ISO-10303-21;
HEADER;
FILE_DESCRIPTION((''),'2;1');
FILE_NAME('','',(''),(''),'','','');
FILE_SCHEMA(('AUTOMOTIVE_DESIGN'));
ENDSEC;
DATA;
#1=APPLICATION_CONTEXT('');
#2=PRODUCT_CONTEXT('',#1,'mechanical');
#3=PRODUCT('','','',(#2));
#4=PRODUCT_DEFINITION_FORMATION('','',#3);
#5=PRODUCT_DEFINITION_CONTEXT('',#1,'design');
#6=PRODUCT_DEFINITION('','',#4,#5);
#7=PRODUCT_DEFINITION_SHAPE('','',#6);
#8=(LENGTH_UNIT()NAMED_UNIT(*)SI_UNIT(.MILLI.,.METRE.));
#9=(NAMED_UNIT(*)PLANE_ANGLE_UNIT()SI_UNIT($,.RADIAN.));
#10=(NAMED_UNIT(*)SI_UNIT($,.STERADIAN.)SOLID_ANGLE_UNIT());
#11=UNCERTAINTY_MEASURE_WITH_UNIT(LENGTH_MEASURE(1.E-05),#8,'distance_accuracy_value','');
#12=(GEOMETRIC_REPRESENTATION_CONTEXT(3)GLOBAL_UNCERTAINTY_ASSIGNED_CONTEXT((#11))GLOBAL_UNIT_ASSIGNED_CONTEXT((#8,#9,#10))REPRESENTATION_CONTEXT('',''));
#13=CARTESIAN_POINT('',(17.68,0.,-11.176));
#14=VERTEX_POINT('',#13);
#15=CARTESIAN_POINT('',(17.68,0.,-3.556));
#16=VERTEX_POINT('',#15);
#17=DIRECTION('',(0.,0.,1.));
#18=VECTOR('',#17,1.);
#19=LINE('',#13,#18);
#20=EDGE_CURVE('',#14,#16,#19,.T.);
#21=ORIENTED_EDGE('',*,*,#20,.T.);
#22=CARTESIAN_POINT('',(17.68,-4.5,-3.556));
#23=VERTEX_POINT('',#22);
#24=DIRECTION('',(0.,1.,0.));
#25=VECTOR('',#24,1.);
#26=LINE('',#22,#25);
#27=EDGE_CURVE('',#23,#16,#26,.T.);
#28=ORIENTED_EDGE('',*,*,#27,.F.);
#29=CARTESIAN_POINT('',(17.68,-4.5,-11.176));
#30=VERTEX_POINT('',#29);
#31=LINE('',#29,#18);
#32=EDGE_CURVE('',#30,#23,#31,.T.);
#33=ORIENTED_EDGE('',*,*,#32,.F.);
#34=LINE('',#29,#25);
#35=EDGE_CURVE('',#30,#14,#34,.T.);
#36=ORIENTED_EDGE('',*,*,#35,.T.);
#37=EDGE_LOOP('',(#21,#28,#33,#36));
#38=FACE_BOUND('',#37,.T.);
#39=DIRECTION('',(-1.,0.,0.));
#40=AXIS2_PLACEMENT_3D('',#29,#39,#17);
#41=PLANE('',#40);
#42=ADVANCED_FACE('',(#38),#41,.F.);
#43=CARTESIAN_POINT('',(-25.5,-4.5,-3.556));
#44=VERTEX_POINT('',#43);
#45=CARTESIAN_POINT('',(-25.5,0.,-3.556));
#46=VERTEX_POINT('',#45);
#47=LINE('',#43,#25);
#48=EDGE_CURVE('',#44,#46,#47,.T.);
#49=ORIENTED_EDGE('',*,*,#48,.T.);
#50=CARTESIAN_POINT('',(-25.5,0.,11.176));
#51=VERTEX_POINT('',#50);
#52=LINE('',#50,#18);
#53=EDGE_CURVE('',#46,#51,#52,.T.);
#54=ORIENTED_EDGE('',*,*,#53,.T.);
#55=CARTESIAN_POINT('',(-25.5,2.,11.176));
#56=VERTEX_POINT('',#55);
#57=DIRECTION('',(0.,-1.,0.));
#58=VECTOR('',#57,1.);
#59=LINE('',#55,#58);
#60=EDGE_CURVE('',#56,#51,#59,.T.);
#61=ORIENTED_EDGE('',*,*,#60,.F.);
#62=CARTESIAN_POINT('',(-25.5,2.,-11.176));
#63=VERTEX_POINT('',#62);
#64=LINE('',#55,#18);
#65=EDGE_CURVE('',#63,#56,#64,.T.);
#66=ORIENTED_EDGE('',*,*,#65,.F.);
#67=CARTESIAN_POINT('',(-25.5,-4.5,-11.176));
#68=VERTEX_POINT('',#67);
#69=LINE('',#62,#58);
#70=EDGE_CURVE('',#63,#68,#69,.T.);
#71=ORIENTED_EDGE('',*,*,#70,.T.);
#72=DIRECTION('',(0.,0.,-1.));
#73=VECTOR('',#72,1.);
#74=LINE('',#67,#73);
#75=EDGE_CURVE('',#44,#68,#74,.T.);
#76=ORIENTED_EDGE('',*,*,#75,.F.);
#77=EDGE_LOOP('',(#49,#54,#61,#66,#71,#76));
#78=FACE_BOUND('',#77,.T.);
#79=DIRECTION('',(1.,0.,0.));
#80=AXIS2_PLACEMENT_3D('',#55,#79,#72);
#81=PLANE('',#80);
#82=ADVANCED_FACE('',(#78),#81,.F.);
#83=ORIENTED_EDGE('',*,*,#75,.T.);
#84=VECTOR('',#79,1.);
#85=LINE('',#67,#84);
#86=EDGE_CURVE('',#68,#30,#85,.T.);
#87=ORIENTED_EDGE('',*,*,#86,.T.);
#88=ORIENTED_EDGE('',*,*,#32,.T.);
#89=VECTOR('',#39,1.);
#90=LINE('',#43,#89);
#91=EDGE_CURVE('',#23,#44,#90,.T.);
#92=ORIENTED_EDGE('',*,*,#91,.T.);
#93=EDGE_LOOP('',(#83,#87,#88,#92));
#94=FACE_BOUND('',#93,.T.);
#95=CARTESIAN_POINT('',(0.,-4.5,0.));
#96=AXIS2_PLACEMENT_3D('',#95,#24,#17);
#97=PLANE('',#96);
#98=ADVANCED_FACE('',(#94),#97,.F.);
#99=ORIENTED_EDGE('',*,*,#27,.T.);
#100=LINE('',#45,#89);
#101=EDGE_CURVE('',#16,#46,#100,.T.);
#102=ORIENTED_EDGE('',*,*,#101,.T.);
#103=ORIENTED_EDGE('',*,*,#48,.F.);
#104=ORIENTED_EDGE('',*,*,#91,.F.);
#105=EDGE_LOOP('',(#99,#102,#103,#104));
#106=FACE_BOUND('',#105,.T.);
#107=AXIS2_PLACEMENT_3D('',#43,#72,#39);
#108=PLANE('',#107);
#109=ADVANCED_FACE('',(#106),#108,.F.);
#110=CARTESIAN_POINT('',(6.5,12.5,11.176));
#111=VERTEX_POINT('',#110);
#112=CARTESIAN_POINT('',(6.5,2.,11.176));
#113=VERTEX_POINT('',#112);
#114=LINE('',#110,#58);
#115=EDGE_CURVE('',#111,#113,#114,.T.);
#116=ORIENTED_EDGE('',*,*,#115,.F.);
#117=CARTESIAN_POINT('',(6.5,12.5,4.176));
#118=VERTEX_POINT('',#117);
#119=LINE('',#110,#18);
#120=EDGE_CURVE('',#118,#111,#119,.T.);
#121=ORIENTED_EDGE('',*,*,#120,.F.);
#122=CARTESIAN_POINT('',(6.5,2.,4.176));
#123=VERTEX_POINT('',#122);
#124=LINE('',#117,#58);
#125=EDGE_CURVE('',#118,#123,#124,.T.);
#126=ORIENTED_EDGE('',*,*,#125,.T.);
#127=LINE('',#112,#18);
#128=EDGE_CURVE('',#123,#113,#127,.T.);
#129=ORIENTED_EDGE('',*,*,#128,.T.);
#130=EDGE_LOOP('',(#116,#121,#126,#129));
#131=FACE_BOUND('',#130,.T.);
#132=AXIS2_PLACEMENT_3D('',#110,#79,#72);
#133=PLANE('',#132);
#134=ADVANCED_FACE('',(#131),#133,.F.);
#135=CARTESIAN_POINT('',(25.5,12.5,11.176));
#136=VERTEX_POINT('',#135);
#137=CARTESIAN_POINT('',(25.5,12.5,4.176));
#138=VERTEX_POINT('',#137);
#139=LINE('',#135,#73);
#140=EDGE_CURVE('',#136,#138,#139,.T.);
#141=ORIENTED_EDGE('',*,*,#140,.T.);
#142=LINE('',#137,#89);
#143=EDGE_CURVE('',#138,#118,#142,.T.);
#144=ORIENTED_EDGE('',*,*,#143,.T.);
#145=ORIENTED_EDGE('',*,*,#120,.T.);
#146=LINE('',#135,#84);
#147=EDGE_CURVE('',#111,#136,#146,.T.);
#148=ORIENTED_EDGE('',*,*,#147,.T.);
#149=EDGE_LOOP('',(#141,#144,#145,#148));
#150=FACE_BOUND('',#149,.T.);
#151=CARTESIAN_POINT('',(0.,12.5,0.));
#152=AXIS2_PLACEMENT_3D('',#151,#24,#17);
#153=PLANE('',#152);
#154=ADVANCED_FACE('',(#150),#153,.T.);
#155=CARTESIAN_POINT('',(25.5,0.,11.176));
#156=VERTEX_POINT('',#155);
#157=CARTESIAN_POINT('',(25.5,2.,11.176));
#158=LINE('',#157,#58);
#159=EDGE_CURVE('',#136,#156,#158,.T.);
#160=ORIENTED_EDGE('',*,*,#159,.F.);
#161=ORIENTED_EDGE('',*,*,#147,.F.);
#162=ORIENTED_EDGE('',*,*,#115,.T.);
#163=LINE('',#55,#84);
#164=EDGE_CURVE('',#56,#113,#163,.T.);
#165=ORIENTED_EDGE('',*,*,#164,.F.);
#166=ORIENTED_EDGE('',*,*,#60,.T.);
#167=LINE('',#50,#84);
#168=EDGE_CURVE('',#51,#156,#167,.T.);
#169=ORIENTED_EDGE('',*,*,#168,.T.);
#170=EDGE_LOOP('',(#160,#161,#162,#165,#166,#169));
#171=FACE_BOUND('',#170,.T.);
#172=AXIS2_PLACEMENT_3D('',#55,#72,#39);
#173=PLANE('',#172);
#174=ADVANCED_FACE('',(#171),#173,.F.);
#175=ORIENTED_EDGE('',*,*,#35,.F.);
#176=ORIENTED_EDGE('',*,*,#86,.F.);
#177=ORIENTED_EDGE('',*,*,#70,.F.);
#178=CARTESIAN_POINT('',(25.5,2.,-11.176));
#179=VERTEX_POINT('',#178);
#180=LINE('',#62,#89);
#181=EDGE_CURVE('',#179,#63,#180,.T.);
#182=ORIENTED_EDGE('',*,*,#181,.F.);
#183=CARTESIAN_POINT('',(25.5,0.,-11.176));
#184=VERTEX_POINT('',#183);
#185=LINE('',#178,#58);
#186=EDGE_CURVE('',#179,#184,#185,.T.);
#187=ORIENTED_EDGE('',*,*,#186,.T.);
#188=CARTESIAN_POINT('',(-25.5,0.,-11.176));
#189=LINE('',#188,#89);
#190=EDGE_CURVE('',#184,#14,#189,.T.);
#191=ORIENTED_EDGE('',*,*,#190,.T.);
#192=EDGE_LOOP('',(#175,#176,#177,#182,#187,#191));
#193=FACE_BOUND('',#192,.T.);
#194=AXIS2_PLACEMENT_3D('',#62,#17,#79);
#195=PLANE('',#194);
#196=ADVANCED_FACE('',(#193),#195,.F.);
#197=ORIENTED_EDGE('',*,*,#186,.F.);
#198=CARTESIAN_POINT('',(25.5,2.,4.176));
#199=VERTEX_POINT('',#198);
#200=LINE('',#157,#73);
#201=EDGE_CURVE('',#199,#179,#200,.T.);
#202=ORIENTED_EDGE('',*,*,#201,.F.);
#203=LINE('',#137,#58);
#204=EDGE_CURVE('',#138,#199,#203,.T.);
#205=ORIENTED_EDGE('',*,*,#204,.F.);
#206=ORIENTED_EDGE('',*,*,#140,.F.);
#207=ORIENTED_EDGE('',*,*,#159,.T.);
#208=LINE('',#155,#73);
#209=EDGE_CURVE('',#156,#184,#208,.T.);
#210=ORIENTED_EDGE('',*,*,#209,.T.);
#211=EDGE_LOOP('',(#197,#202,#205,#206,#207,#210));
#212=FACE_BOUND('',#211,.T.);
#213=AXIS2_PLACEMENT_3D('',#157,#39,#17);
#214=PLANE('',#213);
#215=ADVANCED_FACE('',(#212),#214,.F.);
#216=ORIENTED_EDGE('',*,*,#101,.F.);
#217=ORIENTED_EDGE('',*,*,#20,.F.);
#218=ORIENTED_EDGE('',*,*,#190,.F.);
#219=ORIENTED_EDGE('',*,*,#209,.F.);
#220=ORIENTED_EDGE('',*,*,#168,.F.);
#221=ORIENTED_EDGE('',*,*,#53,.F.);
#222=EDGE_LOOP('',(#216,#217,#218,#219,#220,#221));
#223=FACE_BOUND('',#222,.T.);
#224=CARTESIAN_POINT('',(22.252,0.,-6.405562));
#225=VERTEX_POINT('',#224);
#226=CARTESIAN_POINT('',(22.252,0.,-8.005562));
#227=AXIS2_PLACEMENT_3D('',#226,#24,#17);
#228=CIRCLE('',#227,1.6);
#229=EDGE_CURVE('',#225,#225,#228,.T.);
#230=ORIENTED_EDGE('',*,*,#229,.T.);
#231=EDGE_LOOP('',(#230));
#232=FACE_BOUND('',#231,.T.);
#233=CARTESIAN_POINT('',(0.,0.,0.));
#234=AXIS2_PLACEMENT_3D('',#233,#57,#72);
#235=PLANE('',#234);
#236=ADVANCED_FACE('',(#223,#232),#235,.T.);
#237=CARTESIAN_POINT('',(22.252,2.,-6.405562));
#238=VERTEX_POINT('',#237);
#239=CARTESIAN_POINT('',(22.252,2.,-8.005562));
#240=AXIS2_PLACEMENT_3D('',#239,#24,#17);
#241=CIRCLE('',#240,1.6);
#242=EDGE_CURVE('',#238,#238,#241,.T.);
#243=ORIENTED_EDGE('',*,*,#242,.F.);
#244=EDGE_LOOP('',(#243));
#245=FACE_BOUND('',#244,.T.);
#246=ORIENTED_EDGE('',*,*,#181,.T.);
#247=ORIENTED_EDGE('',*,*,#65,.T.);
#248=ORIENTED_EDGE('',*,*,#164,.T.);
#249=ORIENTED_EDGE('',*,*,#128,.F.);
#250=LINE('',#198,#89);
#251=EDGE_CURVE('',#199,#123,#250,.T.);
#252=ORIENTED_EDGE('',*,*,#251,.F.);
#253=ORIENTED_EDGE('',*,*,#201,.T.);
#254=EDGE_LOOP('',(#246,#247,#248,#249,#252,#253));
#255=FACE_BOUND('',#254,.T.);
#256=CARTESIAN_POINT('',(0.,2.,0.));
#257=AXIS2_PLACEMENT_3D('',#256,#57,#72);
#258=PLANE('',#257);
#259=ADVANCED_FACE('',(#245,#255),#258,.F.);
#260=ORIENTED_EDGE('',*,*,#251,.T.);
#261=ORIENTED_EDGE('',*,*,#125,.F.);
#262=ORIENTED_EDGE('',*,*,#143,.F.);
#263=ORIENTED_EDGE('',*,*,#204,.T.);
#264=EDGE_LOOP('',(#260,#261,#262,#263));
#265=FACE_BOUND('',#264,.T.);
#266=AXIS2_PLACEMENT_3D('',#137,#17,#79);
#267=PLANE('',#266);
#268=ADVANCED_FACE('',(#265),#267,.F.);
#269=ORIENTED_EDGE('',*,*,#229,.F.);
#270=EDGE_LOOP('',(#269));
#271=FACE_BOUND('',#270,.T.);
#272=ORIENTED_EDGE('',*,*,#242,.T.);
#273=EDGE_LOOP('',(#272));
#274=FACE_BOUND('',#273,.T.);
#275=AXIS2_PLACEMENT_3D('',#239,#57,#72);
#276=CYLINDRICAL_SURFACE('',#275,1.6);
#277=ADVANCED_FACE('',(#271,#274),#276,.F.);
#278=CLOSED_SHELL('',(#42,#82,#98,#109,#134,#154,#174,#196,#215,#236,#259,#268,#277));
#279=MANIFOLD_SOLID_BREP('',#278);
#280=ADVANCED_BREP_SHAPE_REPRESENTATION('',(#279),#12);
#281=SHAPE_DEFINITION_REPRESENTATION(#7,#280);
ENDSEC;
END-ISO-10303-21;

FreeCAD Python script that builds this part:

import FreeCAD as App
import Part
import Sketcher
Q = App.Units.Quantity


def add_polygon(sketch, points):
    """Adds a closed chain of lines whose ends are joined by coincident constraints."""
    first, n = sketch.GeometryCount, len(points)
    for a, b in zip(points, points[1:] + points[:1]):
        sketch.addGeometry(Part.LineSegment(App.Vector(*a, 0), App.Vector(*b, 0)), False)
    for i in range(n):
        sketch.addConstraint(Sketcher.Constraint("Coincident", first + i, 2, first + (i + 1) % n, 1))

doc = App.newDocument("Part")
body = doc.addObject("PartDesign::Body", "Body")

# Sketch on XZ plane
sketch1 = body.newObject("Sketcher::SketchObject", "Sketch")
sketch1.AttachmentSupport = (doc.getObject("XZ_Plane"), [""])
sketch1.MapMode = "FlatFace"
add_polygon(sketch1, [(-25.5, -11.2), (-25.5, 11.2), (25.5, 11.2), (25.5, -11.2)])  # lines 0-3
sketch1.addGeometry(Part.Circle(App.Vector(22.3, -8, 0), App.Vector(0, 0, 1), 1.6), False)  # 4
sketch1.addConstraint([
    Sketcher.Constraint("Vertical", 0),
    Sketcher.Constraint("Horizontal", 1),
    Sketcher.Constraint("Vertical", 2),
    Sketcher.Constraint("Horizontal", 3),
    Sketcher.Constraint("Symmetric", 0, 2, 2, 2, -1, 1),
    Sketcher.Constraint("Diameter", 4, Q("3.2 mm")),
    Sketcher.Constraint("DistanceX", 1, 1, 1, 2, Q("51 mm")),
    Sketcher.Constraint("DistanceY", 0, 1, 0, 2, Q("22.352 mm")),
    Sketcher.Constraint("DistanceX", -1, 1, 4, 3, Q("22.252 mm")),
    Sketcher.Constraint("DistanceY", 4, 3, -1, 1, Q("8.005562 mm")),
])
pad1 = body.newObject("PartDesign::Pad", "Pad")
pad1.Profile = sketch1
pad1.Length = 2
pad1.Reversed = True

# Sketch on XZ plane
sketch2 = body.newObject("Sketcher::SketchObject", "Sketch001")
sketch2.AttachmentSupport = (doc.getObject("XZ_Plane"), [""])
sketch2.MapMode = "FlatFace"
sketch2.AttachmentOffset = App.Placement(App.Vector(0, 0, -2), App.Rotation())
add_polygon(sketch2, [(6, 4), (6, 11), (26, 11), (26, 4)])  # lines 0-3
sketch2.addConstraint([
    Sketcher.Constraint("Vertical", 0),
    Sketcher.Constraint("Horizontal", 1),
    Sketcher.Constraint("Vertical", 2),
    Sketcher.Constraint("Horizontal", 3),
    Sketcher.Constraint("DistanceX", 1, 1, 1, 2, Q("19 mm")),
    Sketcher.Constraint("DistanceY", 0, 1, 0, 2, Q("7 mm")),
    Sketcher.Constraint("DistanceX", -1, 1, 0, 2, Q("6.5 mm")),
    Sketcher.Constraint("DistanceY", -1, 1, 0, 2, Q("11.176 mm")),
])
pad2 = body.newObject("PartDesign::Pad", "Pad001")
pad2.Profile = sketch2
pad2.Length = 10.5
pad2.Reversed = True

# Sketch on XZ plane
sketch3 = body.newObject("Sketcher::SketchObject", "Sketch002")
sketch3.AttachmentSupport = (doc.getObject("XZ_Plane"), [""])
sketch3.MapMode = "FlatFace"
add_polygon(sketch3, [(-26, -4), (-26, -11), (18, -11), (18, -4)])  # lines 0-3
sketch3.addConstraint([
    Sketcher.Constraint("Vertical", 0),
    Sketcher.Constraint("Horizontal", 1),
    Sketcher.Constraint("Vertical", 2),
    Sketcher.Constraint("Horizontal", 3),
    Sketcher.Constraint("DistanceX", 1, 1, 1, 2, Q("43.18 mm")),
    Sketcher.Constraint("DistanceY", 0, 2, 0, 1, Q("7.62 mm")),
    Sketcher.Constraint("DistanceX", 0, 2, -1, 1, Q("25.5 mm")),
    Sketcher.Constraint("DistanceY", 0, 2, -1, 1, Q("11.176 mm")),
])
pad3 = body.newObject("PartDesign::Pad", "Pad002")
pad3.Profile = sketch3
pad3.Length = 4.5

doc.recompute()
